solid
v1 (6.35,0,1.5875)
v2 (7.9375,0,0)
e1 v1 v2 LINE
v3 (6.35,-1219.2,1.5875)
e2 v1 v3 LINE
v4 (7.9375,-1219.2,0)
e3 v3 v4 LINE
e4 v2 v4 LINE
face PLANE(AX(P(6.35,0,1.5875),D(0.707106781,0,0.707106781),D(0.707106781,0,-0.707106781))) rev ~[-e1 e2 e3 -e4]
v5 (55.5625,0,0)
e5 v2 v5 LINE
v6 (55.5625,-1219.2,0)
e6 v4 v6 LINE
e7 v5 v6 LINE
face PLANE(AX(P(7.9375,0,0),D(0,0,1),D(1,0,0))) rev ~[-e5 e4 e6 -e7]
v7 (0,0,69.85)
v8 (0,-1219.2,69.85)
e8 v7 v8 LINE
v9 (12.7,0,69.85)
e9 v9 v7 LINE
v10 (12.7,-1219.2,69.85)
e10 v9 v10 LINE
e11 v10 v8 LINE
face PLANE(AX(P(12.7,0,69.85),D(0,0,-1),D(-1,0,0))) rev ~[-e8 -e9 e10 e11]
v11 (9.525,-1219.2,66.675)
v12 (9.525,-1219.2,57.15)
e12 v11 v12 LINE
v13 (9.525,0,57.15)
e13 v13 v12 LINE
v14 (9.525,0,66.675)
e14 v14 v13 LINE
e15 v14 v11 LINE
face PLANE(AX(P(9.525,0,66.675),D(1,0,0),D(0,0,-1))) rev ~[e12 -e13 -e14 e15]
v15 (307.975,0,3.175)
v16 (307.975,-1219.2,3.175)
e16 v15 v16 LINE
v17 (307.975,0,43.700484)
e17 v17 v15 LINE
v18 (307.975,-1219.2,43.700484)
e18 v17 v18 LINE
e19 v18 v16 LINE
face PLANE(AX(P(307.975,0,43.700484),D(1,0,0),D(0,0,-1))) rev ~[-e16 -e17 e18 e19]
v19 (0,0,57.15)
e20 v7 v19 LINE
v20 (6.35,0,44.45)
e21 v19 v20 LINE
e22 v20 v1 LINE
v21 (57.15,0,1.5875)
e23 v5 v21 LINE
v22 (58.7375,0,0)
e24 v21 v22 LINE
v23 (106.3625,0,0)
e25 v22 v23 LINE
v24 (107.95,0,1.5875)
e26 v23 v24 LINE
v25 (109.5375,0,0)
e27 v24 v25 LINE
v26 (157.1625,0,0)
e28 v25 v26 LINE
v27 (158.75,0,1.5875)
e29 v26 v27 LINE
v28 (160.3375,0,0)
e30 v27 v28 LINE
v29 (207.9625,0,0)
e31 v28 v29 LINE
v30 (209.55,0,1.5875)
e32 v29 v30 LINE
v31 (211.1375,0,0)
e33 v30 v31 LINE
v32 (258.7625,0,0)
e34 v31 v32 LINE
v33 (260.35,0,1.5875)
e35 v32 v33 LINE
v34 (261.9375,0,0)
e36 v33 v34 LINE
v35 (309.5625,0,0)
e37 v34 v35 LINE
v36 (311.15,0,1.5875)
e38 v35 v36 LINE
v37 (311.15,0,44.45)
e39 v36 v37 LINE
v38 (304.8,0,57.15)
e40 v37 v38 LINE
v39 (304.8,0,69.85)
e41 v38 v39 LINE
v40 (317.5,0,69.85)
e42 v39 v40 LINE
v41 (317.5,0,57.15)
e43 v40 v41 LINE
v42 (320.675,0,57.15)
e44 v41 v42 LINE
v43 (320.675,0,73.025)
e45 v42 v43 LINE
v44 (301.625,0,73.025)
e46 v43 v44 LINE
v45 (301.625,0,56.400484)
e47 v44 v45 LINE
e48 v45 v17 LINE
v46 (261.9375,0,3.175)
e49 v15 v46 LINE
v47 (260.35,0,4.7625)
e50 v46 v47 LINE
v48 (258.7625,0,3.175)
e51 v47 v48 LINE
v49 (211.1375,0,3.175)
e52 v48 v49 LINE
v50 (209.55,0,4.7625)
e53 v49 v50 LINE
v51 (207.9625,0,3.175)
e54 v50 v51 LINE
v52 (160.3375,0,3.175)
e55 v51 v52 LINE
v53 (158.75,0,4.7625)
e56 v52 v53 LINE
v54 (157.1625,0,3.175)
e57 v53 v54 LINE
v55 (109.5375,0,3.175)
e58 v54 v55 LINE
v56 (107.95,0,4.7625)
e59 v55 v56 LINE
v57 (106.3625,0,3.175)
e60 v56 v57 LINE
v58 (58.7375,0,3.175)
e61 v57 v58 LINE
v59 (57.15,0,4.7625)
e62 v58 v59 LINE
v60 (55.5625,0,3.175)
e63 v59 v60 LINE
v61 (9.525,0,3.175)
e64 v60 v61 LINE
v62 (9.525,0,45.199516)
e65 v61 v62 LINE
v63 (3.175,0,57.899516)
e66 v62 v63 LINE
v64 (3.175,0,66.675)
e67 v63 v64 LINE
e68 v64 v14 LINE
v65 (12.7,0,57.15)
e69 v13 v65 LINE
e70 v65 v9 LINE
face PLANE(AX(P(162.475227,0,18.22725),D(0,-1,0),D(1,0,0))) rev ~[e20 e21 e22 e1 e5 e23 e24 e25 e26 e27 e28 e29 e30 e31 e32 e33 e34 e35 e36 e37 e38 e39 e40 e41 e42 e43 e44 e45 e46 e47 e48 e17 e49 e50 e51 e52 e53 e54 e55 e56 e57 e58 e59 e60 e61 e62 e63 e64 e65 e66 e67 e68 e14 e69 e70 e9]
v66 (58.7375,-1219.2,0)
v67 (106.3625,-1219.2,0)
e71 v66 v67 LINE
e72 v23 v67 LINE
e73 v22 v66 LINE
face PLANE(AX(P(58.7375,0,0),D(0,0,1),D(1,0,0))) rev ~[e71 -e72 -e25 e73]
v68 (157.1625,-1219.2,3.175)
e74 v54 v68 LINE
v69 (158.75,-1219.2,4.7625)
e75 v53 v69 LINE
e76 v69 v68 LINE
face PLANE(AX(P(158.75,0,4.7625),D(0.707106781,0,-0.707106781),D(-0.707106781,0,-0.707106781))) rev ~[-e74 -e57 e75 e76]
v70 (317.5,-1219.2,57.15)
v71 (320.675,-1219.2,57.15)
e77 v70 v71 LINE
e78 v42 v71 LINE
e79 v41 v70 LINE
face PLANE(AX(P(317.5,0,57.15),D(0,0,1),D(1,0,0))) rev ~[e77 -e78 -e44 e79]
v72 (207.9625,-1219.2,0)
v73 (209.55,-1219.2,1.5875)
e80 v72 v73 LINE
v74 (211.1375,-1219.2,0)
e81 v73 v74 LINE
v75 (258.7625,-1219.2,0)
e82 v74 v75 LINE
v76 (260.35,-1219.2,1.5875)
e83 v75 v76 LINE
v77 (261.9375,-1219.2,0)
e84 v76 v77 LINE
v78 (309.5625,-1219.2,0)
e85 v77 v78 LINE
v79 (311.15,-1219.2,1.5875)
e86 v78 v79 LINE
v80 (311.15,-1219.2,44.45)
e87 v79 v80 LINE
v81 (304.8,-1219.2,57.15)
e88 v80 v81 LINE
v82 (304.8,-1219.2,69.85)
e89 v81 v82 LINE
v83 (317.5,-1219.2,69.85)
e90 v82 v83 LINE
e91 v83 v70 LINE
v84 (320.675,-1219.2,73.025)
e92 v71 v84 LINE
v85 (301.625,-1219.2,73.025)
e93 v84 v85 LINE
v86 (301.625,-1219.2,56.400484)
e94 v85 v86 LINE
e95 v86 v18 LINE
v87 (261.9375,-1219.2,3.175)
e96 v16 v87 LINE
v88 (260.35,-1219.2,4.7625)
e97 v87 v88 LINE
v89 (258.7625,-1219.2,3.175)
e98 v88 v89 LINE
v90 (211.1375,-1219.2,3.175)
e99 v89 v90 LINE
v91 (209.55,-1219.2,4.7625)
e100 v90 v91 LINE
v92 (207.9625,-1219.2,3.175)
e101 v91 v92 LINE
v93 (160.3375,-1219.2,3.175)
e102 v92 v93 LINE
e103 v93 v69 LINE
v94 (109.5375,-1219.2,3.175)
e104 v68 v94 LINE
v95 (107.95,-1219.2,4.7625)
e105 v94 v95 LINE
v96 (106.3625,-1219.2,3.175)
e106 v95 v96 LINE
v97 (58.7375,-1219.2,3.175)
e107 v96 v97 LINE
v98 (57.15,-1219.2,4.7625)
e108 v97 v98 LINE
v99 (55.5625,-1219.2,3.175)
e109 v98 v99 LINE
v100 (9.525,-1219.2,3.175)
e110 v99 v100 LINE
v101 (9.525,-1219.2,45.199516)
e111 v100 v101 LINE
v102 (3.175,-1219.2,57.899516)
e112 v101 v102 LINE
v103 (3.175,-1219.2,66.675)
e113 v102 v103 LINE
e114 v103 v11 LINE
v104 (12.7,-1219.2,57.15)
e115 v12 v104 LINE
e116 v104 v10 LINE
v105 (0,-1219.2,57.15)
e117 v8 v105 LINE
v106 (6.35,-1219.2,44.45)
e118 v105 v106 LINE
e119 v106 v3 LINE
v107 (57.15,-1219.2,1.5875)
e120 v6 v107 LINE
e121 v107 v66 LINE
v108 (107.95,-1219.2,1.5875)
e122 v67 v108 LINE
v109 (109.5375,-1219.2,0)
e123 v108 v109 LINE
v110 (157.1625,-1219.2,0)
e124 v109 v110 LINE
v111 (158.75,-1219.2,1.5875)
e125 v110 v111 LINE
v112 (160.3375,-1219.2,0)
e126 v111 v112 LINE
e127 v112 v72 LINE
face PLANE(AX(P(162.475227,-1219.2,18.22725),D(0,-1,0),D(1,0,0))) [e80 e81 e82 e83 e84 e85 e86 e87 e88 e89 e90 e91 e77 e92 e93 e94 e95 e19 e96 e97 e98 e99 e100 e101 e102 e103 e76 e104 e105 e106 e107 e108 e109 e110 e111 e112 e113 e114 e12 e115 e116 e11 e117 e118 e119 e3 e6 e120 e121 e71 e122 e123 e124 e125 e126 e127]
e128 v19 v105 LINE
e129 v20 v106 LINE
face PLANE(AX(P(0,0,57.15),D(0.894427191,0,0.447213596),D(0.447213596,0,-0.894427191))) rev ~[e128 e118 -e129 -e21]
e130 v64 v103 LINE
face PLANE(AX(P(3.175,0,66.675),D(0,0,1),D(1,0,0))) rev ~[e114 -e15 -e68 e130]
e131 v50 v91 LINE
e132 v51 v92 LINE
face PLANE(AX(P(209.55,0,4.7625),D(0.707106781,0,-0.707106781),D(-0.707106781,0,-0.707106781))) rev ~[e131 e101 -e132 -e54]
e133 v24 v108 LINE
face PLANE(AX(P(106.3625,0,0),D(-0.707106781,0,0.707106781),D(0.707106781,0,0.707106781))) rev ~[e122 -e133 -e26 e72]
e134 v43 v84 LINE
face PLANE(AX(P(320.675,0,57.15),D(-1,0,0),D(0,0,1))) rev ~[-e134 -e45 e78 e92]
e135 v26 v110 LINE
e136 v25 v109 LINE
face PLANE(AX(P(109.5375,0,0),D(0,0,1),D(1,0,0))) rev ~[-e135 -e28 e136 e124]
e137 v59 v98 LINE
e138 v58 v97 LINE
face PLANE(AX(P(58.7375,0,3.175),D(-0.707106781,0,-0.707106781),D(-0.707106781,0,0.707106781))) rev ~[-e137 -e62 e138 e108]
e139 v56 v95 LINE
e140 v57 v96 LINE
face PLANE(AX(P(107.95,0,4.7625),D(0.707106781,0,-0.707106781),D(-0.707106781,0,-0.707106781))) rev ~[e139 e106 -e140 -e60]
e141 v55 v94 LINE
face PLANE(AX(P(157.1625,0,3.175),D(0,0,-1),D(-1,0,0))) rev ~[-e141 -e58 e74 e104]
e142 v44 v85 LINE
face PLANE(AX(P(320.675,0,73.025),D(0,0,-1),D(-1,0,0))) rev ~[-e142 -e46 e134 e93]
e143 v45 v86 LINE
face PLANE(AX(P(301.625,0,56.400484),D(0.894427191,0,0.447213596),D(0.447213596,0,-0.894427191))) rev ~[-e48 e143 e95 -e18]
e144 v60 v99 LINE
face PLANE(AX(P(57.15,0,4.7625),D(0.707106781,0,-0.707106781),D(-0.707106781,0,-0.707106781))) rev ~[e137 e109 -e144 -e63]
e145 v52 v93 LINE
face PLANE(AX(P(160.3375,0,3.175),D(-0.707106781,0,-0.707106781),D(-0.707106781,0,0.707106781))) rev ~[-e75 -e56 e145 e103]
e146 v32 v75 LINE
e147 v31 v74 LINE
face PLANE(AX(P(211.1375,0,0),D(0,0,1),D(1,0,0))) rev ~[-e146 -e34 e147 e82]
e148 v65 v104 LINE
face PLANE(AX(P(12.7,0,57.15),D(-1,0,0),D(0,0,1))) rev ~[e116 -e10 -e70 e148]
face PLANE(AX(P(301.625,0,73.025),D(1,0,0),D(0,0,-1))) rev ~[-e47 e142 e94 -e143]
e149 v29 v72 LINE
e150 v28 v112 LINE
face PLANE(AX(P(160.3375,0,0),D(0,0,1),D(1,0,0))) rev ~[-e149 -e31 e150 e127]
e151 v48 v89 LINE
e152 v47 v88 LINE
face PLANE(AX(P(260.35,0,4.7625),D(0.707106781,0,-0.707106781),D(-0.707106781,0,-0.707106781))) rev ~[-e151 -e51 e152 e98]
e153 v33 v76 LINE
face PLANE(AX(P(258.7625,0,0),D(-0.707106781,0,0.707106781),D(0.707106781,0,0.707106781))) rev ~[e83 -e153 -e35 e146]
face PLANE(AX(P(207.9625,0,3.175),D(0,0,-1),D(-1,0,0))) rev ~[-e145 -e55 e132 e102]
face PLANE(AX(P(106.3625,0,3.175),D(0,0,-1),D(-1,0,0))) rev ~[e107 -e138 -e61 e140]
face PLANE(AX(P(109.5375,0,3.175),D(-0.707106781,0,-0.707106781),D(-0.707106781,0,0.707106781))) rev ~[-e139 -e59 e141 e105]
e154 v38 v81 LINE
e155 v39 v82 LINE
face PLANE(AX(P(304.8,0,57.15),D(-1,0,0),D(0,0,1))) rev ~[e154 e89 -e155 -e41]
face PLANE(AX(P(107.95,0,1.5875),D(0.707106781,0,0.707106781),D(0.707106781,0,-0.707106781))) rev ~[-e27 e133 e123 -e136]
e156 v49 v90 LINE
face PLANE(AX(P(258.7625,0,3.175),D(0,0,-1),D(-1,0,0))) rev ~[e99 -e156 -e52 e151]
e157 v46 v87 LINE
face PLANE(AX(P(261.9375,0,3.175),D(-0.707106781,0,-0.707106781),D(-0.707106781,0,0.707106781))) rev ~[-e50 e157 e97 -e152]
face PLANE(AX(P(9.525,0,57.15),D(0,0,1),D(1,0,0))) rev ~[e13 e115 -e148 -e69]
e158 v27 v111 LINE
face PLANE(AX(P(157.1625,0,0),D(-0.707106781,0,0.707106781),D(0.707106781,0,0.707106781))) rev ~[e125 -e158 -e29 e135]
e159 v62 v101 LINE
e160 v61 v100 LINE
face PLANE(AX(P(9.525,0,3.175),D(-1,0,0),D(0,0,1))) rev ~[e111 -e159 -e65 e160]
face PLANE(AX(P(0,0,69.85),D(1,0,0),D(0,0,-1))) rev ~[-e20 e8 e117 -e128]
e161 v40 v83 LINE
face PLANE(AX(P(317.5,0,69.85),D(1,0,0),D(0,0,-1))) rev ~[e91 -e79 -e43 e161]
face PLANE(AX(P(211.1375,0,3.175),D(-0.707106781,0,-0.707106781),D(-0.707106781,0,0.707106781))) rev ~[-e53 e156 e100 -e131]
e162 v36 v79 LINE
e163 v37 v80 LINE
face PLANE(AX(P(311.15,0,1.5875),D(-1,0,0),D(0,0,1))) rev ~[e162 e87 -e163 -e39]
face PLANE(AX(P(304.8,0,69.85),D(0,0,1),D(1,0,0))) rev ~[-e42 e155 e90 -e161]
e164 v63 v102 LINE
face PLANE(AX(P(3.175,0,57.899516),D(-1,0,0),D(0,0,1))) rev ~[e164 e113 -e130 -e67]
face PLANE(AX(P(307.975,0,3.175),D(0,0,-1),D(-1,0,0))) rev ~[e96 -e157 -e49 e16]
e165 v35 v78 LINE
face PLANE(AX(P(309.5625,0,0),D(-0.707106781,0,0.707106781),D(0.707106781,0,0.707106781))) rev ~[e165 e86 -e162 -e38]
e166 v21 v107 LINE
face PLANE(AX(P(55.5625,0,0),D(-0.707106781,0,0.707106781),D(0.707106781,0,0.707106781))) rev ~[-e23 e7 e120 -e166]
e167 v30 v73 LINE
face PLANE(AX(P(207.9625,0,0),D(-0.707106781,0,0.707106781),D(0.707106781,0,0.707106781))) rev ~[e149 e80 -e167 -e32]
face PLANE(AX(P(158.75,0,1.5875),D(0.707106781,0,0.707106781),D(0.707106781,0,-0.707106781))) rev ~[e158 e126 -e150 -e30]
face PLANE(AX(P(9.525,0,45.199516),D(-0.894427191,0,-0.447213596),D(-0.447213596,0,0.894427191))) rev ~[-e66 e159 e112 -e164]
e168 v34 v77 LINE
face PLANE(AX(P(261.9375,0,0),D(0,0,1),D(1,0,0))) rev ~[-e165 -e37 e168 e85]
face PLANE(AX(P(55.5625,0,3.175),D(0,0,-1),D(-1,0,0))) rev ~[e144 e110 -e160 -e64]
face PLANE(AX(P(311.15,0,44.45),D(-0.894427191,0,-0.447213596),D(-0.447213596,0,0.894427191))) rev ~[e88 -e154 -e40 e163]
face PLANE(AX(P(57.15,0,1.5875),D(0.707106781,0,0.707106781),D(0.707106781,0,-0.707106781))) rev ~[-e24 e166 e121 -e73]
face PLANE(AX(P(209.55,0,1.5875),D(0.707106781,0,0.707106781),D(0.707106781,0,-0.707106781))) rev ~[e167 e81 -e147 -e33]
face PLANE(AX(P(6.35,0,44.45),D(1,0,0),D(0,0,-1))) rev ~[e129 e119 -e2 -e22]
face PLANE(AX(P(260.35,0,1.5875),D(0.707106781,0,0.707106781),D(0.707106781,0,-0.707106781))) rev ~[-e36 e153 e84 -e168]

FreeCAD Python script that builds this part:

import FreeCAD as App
import Part
import Sketcher
Q = App.Units.Quantity


def add_polygon(sketch, points):
    """Adds a closed chain of lines whose ends are joined by coincident constraints."""
    first, n = sketch.GeometryCount, len(points)
    for a, b in zip(points, points[1:] + points[:1]):
        sketch.addGeometry(Part.LineSegment(App.Vector(*a, 0), App.Vector(*b, 0)), False)
    for i in range(n):
        sketch.addConstraint(Sketcher.Constraint("Coincident", first + i, 2, first + (i + 1) % n, 1))

doc = App.newDocument("Part")
body = doc.addObject("PartDesign::Body", "Body")

sketch1 = doc.addObject("Sketcher::SketchObject", "Sketch")
body.addObject(sketch1)
sketch1.AttachmentSupport = (doc.XZ_Plane, [""])
sketch1.MapMode = "FlatFace"
add_polygon(sketch1, [(9.5, 57.1), (12.7, 57.1), (12.7, 69.8), (0, 69.8), (0, 57.1), (6.3, 44.5), (6.3, 1.6), (7.9, 0), (55.6, 0), (57.1, 1.6), (58.7, 0), (106.4, 0), (108, 1.6), (109.5, 0), (157.2, 0), (158.8, 1.6), (160.3, 0), (208, 0), (209.6, 1.6), (211.1, 0), (258.8, 0), (260.4, 1.6), (261.9, 0), (309.6, 0), (311.1, 1.6), (311.1, 44.5), (304.8, 57.1), (304.8, 69.8), (317.5, 69.8), (317.5, 57.1), (320.7, 57.1), (320.7, 73), (301.6, 73), (301.6, 56.4), (308, 43.7), (308, 3.2), (261.9, 3.2), (260.4, 4.8), (258.8, 3.2), (211.1, 3.2), (209.6, 4.8), (208, 3.2), (160.3, 3.2), (158.8, 4.8), (157.2, 3.2), (109.5, 3.2), (108, 4.8), (106.4, 3.2), (58.7, 3.2), (57.1, 4.8), (55.6, 3.2), (9.5, 3.2), (9.5, 45.2), (3.2, 57.9), (3.2, 66.7), (9.5, 66.7)])
sketch1.addConstraint(Sketcher.Constraint("Horizontal", 0))
sketch1.addConstraint(Sketcher.Constraint("Vertical", 1))
sketch1.addConstraint(Sketcher.Constraint("Horizontal", 2))
sketch1.addConstraint(Sketcher.Constraint("Vertical", 3))
sketch1.addConstraint(Sketcher.Constraint("Vertical", 5))
sketch1.addConstraint(Sketcher.Constraint("Horizontal", 7))
sketch1.addConstraint(Sketcher.Constraint("Horizontal", 10))
sketch1.addConstraint(Sketcher.Constraint("Horizontal", 13))
sketch1.addConstraint(Sketcher.Constraint("Horizontal", 16))
sketch1.addConstraint(Sketcher.Constraint("Horizontal", 19))
sketch1.addConstraint(Sketcher.Constraint("Horizontal", 22))
sketch1.addConstraint(Sketcher.Constraint("Vertical", 24))
sketch1.addConstraint(Sketcher.Constraint("Vertical", 26))
sketch1.addConstraint(Sketcher.Constraint("Horizontal", 27))
sketch1.addConstraint(Sketcher.Constraint("Vertical", 28))
sketch1.addConstraint(Sketcher.Constraint("Horizontal", 29))
sketch1.addConstraint(Sketcher.Constraint("Vertical", 30))
sketch1.addConstraint(Sketcher.Constraint("Horizontal", 31))
sketch1.addConstraint(Sketcher.Constraint("Vertical", 32))
sketch1.addConstraint(Sketcher.Constraint("Vertical", 34))
sketch1.addConstraint(Sketcher.Constraint("Horizontal", 35))
sketch1.addConstraint(Sketcher.Constraint("Horizontal", 38))
sketch1.addConstraint(Sketcher.Constraint("Horizontal", 41))
sketch1.addConstraint(Sketcher.Constraint("Horizontal", 44))
sketch1.addConstraint(Sketcher.Constraint("Horizontal", 47))
sketch1.addConstraint(Sketcher.Constraint("Horizontal", 50))
sketch1.addConstraint(Sketcher.Constraint("Vertical", 51))
sketch1.addConstraint(Sketcher.Constraint("Vertical", 53))
sketch1.addConstraint(Sketcher.Constraint("Horizontal", 54))
sketch1.addConstraint(Sketcher.Constraint("Vertical", 55))
sketch1.addConstraint(Sketcher.Constraint("PointOnObject", 2, 2, -2))
sketch1.addConstraint(Sketcher.Constraint("PointOnObject", 6, 2, -1))
sketch1.addConstraint(Sketcher.Constraint("PointOnObject", 9, 2, -1))
sketch1.addConstraint(Sketcher.Constraint("PointOnObject", 12, 2, -1))
sketch1.addConstraint(Sketcher.Constraint("PointOnObject", 15, 2, -1))
sketch1.addConstraint(Sketcher.Constraint("PointOnObject", 18, 2, -1))
sketch1.addConstraint(Sketcher.Constraint("PointOnObject", 21, 2, -1))
sketch1.addConstraint(Sketcher.Constraint("Perpendicular", 6, 8))
sketch1.addConstraint(Sketcher.Constraint("Perpendicular", 8, 9))
sketch1.addConstraint(Sketcher.Constraint("Perpendicular", 9, 11))
sketch1.addConstraint(Sketcher.Constraint("Perpendicular", 11, 12))
sketch1.addConstraint(Sketcher.Constraint("Perpendicular", 12, 14))
sketch1.addConstraint(Sketcher.Constraint("Perpendicular", 14, 15))
sketch1.addConstraint(Sketcher.Constraint("Perpendicular", 15, 17))
sketch1.addConstraint(Sketcher.Constraint("Perpendicular", 17, 18))
sketch1.addConstraint(Sketcher.Constraint("Perpendicular", 18, 20))
sketch1.addConstraint(Sketcher.Constraint("Perpendicular", 20, 21))
sketch1.addConstraint(Sketcher.Constraint("Perpendicular", 21, 23))
sketch1.addConstraint(Sketcher.Constraint("Parallel", 4, 25))
sketch1.addConstraint(Sketcher.Constraint("Parallel", 25, 33))
sketch1.addConstraint(Sketcher.Constraint("Perpendicular", 23, 36))
sketch1.addConstraint(Sketcher.Constraint("Perpendicular", 36, 37))
sketch1.addConstraint(Sketcher.Constraint("Perpendicular", 37, 39))
sketch1.addConstraint(Sketcher.Constraint("Perpendicular", 39, 40))
sketch1.addConstraint(Sketcher.Constraint("Perpendicular", 40, 42))
sketch1.addConstraint(Sketcher.Constraint("Perpendicular", 42, 43))
sketch1.addConstraint(Sketcher.Constraint("Perpendicular", 43, 45))
sketch1.addConstraint(Sketcher.Constraint("Perpendicular", 45, 46))
sketch1.addConstraint(Sketcher.Constraint("Perpendicular", 46, 48))
sketch1.addConstraint(Sketcher.Constraint("Perpendicular", 48, 49))
sketch1.addConstraint(Sketcher.Constraint("Parallel", 33, 52))
sketch1.addConstraint(Sketcher.Constraint("Horizontal", 0, 2, 3, 2))
sketch1.addConstraint(Sketcher.Constraint("Horizontal", 5, 2, 8, 2))
sketch1.addConstraint(Sketcher.Constraint("Horizontal", 8, 2, 11, 2))
sketch1.addConstraint(Sketcher.Constraint("Horizontal", 11, 2, 14, 2))
sketch1.addConstraint(Sketcher.Constraint("Horizontal", 14, 2, 17, 2))
sketch1.addConstraint(Sketcher.Constraint("Horizontal", 17, 2, 20, 2))
sketch1.addConstraint(Sketcher.Constraint("Horizontal", 20, 2, 23, 2))
sketch1.addConstraint(Sketcher.Constraint("Horizontal", 4, 2, 24, 2))
sketch1.addConstraint(Sketcher.Constraint("Horizontal", 3, 2, 25, 2))
sketch1.addConstraint(Sketcher.Constraint("Horizontal", 2, 2, 26, 2))
sketch1.addConstraint(Sketcher.Constraint("Horizontal", 25, 2, 28, 2))
sketch1.addConstraint(Sketcher.Constraint("Horizontal", 35, 2, 37, 2))
sketch1.addConstraint(Sketcher.Constraint("Horizontal", 36, 2, 39, 2))
sketch1.addConstraint(Sketcher.Constraint("Horizontal", 38, 2, 40, 2))
sketch1.addConstraint(Sketcher.Constraint("Horizontal", 39, 2, 42, 2))
sketch1.addConstraint(Sketcher.Constraint("Horizontal", 41, 2, 43, 2))
sketch1.addConstraint(Sketcher.Constraint("Horizontal", 42, 2, 45, 2))
sketch1.addConstraint(Sketcher.Constraint("Horizontal", 44, 2, 46, 2))
sketch1.addConstraint(Sketcher.Constraint("Horizontal", 45, 2, 48, 2))
sketch1.addConstraint(Sketcher.Constraint("Horizontal", 47, 2, 49, 2))
sketch1.addConstraint(Sketcher.Constraint("Vertical", 21, 2, 35, 2))
sketch1.addConstraint(Sketcher.Constraint("Vertical", 20, 2, 36, 2))
sketch1.addConstraint(Sketcher.Constraint("Vertical", 18, 2, 38, 2))
sketch1.addConstraint(Sketcher.Constraint("Vertical", 15, 2, 41, 2))
sketch1.addConstraint(Sketcher.Constraint("Vertical", 12, 2, 44, 2))
sketch1.addConstraint(Sketcher.Constraint("Vertical", 9, 2, 47, 2))
sketch1.addConstraint(Sketcher.Constraint("Vertical", 51, 2, 54, 2))
sketch1.addConstraint(Sketcher.Constraint("Equal", 7, 10))
sketch1.addConstraint(Sketcher.Constraint("Equal", 10, 13))
sketch1.addConstraint(Sketcher.Constraint("Equal", 13, 16))
sketch1.addConstraint(Sketcher.Constraint("Equal", 16, 19))
sketch1.addConstraint(Sketcher.Constraint("Equal", 19, 22))
sketch1.addConstraint(Sketcher.Constraint("Equal", 2, 27))
sketch1.addConstraint(Sketcher.Constraint("Equal", 0, 29))
sketch1.addConstraint(Sketcher.Constraint("Equal", 35, 50))
sketch1.addConstraint(Sketcher.Constraint("Equal", 27, 1))
sketch1.addConstraint(Sketcher.Constraint("Equal", 6, 8))
sketch1.addConstraint(Sketcher.Constraint("Equal", 25, 33))
sketch1.addConstraint(Sketcher.Constraint("Equal", 33, 52))
sketch1.addConstraint(Sketcher.Constraint("DistanceX", 2, 2, 2, 1, Q("0.5 in")))
sketch1.addConstraint(Sketcher.Constraint("DistanceX", -1, 1, 25, 2, Q("12 in")))
sketch1.addConstraint(Sketcher.Constraint("DistanceY", 4, 2, 1, 2, Q("1 in")))
sketch1.addConstraint(Sketcher.Constraint("DistanceX", 31, 2, 31, 1, Q("0.75 in")))
sketch1.addConstraint(Sketcher.Constraint("DistanceX", 0, 1, 0, 2, Q("0.125 in")))
sketch1.addConstraint(Sketcher.Constraint("DistanceX", 7, 1, 7, 2, Q("1.875 in")))
sketch1.addConstraint(Sketcher.Constraint("DistanceY", 5, 2, 5, 1, Q("1.6875 in")))
sketch1.addConstraint(Sketcher.Constraint("DistanceY", 30, 1, 30, 2, Q("0.625 in")))
sketch1.addConstraint(Sketcher.Constraint("DistanceY", 55, 2, 55, 1, Q("0.375 in")))
sketch1.addConstraint(Sketcher.Constraint("DistanceY", -1, 1, 34, 2, Q("0.125 in")))
sketch1.addConstraint(Sketcher.Constraint("DistanceY", 32, 2, 32, 1, 16.624516))
sketch1.addConstraint(Sketcher.Constraint("DistanceY", 51, 1, 51, 2, 42.024516))
pad1 = doc.addObject("PartDesign::Pad", "Pad")
body.addObject(pad1)
pad1.Profile = sketch1
pad1.Length = Q("48 in")

doc.recompute()
